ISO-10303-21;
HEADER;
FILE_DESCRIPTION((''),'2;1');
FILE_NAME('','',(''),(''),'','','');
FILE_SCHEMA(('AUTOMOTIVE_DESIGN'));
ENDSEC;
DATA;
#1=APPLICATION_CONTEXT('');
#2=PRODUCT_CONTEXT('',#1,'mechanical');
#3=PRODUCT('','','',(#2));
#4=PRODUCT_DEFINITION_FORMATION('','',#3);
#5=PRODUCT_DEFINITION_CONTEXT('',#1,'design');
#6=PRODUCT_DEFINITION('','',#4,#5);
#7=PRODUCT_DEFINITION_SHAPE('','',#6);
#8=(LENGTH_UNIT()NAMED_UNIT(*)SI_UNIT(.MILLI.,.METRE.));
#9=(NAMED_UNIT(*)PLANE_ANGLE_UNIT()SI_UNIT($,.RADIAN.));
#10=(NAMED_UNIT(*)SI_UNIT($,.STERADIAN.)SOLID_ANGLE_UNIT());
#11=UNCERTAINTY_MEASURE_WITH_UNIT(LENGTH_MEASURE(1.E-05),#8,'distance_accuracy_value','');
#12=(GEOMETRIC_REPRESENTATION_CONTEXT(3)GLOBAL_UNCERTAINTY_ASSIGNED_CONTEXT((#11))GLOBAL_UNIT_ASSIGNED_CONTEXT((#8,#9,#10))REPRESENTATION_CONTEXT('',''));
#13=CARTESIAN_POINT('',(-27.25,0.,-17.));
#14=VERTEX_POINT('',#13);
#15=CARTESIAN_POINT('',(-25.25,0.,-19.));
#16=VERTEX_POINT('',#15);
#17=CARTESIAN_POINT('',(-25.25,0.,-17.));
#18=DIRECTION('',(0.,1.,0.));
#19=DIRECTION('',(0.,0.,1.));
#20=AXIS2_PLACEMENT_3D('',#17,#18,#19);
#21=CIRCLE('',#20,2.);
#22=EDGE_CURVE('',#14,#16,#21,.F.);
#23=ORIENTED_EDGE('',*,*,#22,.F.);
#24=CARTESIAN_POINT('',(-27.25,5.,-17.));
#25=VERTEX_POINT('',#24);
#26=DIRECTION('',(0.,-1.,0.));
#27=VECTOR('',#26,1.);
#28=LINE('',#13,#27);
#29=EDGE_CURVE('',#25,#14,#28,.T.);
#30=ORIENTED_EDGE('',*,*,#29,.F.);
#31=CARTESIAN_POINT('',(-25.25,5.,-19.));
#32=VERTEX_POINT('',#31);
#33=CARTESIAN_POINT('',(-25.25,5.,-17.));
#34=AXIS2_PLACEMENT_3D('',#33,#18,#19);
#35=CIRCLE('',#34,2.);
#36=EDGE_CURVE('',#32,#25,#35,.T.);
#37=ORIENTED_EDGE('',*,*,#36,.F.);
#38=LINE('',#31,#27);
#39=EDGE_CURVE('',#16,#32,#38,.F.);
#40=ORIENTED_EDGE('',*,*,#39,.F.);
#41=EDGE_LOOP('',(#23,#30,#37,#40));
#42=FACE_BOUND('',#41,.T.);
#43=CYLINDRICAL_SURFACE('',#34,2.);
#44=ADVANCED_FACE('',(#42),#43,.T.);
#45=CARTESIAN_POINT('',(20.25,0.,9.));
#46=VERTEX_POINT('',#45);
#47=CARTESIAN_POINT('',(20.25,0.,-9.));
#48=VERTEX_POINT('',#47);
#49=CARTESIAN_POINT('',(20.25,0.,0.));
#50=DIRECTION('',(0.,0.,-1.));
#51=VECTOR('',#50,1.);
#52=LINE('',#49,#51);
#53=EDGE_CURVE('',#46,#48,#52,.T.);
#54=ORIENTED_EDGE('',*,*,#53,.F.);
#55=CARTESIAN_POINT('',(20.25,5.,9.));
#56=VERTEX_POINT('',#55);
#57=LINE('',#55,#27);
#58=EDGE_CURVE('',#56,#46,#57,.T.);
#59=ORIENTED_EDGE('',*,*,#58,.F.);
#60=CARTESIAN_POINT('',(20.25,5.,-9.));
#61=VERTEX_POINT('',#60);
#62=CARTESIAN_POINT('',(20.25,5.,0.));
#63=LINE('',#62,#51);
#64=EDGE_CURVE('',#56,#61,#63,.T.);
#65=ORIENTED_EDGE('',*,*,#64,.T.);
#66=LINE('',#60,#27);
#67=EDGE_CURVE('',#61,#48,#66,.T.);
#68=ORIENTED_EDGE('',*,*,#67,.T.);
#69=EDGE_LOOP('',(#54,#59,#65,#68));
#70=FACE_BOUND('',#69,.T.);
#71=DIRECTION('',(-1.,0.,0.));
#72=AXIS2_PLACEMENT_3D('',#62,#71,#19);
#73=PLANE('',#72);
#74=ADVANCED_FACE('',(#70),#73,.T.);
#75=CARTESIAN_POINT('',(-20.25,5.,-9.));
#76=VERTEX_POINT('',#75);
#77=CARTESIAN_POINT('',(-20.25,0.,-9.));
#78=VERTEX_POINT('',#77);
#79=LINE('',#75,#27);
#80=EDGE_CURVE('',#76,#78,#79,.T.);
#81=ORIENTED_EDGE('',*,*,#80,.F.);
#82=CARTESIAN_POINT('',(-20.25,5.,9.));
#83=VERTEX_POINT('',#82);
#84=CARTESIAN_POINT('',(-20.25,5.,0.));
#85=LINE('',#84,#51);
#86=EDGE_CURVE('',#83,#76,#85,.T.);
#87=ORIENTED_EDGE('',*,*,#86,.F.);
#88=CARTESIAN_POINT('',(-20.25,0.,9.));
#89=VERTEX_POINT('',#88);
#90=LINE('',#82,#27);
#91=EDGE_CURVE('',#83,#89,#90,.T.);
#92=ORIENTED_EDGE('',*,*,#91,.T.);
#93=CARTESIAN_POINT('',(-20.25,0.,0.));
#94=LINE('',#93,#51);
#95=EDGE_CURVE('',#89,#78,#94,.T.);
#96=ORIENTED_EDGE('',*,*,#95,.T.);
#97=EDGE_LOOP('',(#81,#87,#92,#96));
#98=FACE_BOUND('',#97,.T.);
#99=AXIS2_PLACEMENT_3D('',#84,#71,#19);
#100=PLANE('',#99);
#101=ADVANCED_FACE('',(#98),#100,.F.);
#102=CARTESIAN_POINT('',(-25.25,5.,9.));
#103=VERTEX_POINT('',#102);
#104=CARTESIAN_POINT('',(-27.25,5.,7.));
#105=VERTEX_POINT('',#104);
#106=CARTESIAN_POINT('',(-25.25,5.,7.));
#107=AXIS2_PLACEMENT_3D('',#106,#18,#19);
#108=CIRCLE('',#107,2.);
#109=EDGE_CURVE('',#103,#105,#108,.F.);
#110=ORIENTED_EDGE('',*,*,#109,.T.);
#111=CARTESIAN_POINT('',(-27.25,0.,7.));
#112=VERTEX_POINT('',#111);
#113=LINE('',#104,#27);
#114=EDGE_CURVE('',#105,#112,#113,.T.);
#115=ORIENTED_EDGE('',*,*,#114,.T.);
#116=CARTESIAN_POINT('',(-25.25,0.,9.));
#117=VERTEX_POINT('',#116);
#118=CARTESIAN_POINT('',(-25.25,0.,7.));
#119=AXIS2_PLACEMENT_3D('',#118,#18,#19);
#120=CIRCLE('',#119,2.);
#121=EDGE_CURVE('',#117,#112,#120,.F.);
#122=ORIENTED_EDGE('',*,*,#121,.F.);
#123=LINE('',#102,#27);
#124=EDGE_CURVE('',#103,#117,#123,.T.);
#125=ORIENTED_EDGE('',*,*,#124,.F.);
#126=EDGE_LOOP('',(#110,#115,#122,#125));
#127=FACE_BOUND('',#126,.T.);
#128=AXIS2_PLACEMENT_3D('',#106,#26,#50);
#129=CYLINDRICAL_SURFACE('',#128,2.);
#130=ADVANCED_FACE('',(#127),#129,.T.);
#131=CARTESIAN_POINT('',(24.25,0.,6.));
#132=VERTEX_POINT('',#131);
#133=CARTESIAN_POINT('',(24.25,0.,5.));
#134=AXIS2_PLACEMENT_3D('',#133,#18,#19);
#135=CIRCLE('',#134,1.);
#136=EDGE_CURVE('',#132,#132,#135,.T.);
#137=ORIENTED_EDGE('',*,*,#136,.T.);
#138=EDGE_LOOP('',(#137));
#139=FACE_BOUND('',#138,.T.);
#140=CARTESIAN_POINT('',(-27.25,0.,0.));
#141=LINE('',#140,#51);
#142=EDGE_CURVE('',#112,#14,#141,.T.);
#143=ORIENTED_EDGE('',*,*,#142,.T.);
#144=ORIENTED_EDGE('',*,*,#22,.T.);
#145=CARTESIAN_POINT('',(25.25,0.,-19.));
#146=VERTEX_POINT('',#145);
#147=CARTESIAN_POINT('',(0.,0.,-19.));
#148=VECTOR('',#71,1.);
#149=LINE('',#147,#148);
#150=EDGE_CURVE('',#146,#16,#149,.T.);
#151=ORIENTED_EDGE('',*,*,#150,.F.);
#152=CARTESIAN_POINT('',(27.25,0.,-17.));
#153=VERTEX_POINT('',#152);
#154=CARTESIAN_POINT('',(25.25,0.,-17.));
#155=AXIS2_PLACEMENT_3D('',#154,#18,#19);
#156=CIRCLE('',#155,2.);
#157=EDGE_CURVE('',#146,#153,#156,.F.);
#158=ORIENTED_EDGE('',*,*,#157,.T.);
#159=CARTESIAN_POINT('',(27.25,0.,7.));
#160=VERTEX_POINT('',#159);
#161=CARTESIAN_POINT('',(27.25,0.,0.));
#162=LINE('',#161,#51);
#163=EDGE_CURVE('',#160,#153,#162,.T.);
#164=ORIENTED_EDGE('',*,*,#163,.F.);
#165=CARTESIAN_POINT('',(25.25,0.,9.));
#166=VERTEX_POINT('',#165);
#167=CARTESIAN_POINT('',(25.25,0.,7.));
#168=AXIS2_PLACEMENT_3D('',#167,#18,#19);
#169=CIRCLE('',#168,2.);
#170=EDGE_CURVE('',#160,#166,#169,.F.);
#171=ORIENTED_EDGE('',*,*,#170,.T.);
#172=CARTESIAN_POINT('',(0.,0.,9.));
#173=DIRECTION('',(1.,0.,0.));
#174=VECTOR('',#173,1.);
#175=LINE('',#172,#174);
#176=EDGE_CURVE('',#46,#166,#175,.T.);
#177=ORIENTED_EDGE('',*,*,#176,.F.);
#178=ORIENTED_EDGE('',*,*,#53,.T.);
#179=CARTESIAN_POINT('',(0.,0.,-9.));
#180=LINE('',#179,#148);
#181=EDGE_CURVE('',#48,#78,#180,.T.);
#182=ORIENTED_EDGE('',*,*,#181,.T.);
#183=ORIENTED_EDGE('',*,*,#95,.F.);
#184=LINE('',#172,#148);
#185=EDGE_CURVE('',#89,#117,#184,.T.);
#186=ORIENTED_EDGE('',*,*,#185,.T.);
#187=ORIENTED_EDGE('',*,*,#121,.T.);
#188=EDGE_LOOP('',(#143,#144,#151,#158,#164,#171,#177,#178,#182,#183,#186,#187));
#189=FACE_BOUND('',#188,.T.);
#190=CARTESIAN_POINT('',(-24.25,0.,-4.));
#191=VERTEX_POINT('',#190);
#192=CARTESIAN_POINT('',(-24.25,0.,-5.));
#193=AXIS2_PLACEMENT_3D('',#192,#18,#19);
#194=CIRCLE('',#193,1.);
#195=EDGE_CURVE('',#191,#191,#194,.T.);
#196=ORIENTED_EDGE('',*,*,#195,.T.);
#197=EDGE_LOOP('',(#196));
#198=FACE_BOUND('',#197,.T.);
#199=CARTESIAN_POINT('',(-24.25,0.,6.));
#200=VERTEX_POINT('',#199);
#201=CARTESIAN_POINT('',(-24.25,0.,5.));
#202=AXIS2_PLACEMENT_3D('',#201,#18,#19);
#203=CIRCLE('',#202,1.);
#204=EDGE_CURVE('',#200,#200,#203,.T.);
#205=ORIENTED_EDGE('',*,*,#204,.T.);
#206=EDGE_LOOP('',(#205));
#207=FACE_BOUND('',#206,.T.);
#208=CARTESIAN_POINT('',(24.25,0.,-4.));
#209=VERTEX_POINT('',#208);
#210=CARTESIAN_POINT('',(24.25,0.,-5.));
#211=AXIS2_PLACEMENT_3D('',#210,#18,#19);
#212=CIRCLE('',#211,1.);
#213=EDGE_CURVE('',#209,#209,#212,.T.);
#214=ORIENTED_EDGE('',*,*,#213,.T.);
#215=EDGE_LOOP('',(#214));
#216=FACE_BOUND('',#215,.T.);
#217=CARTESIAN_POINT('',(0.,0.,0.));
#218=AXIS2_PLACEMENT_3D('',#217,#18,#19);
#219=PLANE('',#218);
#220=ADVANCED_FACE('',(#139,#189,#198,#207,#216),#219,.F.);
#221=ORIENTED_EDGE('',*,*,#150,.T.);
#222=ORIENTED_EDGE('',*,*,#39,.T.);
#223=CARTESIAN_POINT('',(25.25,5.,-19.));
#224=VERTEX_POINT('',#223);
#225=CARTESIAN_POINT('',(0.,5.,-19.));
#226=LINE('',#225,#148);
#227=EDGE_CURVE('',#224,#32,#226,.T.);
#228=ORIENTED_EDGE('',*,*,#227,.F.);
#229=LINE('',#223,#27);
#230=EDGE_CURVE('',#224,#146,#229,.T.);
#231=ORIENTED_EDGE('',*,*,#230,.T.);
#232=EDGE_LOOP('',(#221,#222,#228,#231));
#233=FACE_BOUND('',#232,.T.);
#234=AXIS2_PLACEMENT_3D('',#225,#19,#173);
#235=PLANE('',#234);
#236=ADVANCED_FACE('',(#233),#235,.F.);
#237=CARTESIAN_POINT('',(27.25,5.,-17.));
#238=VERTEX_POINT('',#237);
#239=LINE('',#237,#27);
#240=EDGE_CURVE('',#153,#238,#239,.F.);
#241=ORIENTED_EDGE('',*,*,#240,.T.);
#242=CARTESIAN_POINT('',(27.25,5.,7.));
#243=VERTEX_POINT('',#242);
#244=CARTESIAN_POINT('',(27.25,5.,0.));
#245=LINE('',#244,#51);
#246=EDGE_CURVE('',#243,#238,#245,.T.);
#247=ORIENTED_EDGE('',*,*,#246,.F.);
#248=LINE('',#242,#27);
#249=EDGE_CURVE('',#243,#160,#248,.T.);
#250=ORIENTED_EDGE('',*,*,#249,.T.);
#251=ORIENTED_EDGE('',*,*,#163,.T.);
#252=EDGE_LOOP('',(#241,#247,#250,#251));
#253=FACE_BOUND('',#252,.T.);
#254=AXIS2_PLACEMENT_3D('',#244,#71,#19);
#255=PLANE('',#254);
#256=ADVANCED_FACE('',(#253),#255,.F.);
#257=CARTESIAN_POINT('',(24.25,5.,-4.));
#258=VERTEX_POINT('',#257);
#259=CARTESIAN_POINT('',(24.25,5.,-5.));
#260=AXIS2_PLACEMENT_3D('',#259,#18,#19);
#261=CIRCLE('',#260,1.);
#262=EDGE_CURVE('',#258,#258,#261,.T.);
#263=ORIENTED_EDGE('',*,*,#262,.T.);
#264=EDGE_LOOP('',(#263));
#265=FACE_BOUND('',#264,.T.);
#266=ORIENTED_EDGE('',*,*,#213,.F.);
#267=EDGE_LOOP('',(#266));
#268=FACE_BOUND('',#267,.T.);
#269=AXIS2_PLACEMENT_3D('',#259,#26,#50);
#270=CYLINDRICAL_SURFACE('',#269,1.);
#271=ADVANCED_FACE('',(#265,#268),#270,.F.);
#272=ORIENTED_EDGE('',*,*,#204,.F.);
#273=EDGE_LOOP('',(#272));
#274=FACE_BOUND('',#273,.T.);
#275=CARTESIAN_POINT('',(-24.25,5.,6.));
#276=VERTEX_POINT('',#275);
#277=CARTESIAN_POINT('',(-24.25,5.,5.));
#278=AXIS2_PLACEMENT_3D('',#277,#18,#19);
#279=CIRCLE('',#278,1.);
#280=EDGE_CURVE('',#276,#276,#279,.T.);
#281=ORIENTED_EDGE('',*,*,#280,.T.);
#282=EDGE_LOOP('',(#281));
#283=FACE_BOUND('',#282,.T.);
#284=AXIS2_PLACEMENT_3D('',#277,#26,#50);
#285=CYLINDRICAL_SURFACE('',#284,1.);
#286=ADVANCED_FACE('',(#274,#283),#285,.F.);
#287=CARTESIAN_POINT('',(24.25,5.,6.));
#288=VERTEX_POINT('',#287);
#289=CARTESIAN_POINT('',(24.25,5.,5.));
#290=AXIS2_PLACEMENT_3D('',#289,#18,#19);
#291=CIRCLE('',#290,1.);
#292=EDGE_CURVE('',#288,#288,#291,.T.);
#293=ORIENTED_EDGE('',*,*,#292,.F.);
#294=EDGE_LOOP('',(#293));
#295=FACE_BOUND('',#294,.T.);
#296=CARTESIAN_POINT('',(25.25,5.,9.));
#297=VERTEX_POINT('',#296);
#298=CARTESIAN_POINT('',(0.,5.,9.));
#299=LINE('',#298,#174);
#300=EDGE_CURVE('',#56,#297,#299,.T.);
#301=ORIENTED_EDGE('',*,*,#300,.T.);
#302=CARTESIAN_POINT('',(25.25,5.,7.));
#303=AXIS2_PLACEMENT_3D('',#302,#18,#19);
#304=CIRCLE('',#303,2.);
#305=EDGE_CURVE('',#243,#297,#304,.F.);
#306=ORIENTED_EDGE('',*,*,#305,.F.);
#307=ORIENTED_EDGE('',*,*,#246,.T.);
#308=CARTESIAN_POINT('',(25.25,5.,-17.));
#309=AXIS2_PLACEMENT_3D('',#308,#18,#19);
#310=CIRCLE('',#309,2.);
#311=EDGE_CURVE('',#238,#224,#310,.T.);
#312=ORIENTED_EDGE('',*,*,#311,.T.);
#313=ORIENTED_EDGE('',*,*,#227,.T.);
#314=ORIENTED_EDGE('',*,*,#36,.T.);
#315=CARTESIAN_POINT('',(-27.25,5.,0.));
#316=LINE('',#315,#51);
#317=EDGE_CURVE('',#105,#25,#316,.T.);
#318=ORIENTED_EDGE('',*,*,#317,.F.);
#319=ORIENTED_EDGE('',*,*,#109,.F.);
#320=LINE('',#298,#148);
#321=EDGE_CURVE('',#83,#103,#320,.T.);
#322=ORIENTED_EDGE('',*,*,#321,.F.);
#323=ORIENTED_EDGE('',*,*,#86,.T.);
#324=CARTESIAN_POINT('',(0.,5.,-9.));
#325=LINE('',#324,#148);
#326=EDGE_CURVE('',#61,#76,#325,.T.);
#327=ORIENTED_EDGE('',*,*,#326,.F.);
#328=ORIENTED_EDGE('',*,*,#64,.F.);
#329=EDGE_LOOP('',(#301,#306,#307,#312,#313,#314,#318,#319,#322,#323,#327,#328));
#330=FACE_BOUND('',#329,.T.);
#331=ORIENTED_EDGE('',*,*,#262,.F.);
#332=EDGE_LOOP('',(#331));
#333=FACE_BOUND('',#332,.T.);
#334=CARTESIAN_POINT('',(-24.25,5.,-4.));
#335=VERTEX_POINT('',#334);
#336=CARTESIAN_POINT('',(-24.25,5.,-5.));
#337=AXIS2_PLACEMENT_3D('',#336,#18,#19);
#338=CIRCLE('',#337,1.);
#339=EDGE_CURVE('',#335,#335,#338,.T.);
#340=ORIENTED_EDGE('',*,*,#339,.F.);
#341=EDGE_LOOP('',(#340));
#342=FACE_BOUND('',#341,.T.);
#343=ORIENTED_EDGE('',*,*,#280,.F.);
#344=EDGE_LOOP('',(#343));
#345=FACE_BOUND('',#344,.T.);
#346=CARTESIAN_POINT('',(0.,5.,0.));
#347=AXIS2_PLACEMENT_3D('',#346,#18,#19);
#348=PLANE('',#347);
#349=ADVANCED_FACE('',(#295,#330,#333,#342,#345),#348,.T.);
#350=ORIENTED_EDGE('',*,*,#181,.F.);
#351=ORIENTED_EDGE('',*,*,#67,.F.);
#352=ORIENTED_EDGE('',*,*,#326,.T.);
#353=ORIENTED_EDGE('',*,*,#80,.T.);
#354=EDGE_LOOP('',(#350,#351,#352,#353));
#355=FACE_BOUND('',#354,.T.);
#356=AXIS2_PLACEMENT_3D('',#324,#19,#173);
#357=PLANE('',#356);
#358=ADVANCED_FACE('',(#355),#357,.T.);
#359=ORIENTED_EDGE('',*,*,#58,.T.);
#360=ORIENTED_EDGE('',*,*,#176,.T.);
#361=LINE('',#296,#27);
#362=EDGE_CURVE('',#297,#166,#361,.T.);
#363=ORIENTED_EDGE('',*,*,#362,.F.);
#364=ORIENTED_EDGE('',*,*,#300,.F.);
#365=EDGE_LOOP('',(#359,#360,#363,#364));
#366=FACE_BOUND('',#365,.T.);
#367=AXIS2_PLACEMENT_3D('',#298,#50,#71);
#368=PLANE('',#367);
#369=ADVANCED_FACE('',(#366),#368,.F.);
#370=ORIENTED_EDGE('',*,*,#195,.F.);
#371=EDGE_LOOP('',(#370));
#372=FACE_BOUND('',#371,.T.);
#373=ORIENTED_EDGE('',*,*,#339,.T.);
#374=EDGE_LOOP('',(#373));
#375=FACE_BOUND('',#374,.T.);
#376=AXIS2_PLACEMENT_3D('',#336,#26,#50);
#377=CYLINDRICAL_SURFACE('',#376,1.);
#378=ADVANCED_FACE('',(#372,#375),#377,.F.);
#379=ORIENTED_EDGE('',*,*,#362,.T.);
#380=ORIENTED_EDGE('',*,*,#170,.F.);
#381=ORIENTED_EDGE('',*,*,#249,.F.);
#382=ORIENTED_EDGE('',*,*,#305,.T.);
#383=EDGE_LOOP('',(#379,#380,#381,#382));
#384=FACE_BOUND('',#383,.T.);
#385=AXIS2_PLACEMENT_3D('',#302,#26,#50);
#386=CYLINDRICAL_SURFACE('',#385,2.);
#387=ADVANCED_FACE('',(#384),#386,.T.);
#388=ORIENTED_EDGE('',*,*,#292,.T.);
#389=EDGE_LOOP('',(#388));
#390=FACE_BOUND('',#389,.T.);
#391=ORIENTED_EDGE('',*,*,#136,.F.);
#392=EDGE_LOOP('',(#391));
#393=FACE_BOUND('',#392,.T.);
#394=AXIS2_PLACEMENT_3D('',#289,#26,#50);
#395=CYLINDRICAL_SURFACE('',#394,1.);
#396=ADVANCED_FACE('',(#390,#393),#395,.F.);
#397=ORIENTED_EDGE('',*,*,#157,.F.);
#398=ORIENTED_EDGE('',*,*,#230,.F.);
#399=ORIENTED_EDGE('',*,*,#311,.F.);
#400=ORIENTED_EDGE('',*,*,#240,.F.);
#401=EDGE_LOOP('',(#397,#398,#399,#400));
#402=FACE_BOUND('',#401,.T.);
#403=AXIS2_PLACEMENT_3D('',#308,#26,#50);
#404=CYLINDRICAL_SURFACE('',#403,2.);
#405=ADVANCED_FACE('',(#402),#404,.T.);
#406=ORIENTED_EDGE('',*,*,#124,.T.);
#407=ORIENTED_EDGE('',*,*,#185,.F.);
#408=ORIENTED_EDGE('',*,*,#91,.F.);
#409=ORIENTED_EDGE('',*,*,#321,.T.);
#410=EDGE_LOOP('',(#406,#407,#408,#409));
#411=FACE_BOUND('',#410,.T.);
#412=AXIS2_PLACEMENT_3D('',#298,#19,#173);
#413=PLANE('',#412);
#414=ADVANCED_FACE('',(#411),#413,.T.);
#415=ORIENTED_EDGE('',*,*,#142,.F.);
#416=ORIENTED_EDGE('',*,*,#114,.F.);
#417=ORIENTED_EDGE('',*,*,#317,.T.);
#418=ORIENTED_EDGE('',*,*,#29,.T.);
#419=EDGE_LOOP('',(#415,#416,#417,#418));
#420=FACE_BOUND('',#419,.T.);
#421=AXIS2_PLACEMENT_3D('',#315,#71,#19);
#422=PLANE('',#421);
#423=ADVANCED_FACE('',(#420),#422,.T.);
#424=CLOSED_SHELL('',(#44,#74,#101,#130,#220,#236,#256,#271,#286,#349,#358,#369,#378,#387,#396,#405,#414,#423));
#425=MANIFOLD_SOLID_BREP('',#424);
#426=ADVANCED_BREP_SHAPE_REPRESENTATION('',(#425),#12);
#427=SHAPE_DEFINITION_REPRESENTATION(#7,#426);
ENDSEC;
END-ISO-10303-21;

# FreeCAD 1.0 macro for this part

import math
import FreeCAD as App
import Part
import Sketcher
Q = App.Units.Quantity


def edges_at(feature, points):
    """Names of the edges that pass closest to the given points."""
    edges = feature.Shape.Edges
    near = lambda p: min(range(len(edges)), key=lambda i: edges[i].distToShape(Part.Vertex(*p))[0])
    return sorted({f"Edge{near(p) + 1}" for p in points})

doc = App.newDocument("Part")
body = doc.addObject("PartDesign::Body", "Body")

sketch1 = doc.addObject("Sketcher::SketchObject", "Sketch")
body.addObject(sketch1)
sketch1.AttachmentSupport = (doc.XZ_Plane, [""])
sketch1.MapMode = "FlatFace"
sketch1.addGeometry(Part.ArcOfCircle(Part.Circle(App.Vector(-25.25, 7, 0), App.Vector(0, 0, 1), 2), math.radians(90), math.radians(180)), False)
sketch1.addGeometry(Part.LineSegment(App.Vector(-25.25, 9, 0), App.Vector(-20.25, 9, 0)), False)
sketch1.addGeometry(Part.LineSegment(App.Vector(-20.25, 9, 0), App.Vector(-20.25, -9, 0)), False)
sketch1.addGeometry(Part.LineSegment(App.Vector(-20.25, -9, 0), App.Vector(20.25, -9, 0)), False)
sketch1.addGeometry(Part.LineSegment(App.Vector(20.25, -9, 0), App.Vector(20.25, 9, 0)), False)
sketch1.addGeometry(Part.LineSegment(App.Vector(20.25, 9, 0), App.Vector(25.25, 9, 0)), False)
sketch1.addGeometry(Part.ArcOfCircle(Part.Circle(App.Vector(25.25, 7, 0), App.Vector(0, 0, 1), 2), math.radians(0), math.radians(90)), False)
sketch1.addGeometry(Part.LineSegment(App.Vector(27.25, 7, 0), App.Vector(27.25, -19, 0)), False)
sketch1.addGeometry(Part.LineSegment(App.Vector(27.25, -19, 0), App.Vector(-27.25, -19, 0)), False)
sketch1.addGeometry(Part.LineSegment(App.Vector(-27.25, -19, 0), App.Vector(-27.25, 7, 0)), False)
sketch1.addGeometry(Part.Circle(App.Vector(24.25, 5, 0), App.Vector(0, 0, 1), 1), False)
sketch1.addGeometry(Part.Circle(App.Vector(-24.25, 5, 0), App.Vector(0, 0, 1), 1), False)
sketch1.addGeometry(Part.Circle(App.Vector(24.25, -5, 0), App.Vector(0, 0, 1), 1), False)
sketch1.addGeometry(Part.Circle(App.Vector(-24.25, -5, 0), App.Vector(0, 0, 1), 1), False)
sketch1.addConstraint(Sketcher.Constraint("Tangent", 0, 1, 1, 1))
sketch1.addConstraint(Sketcher.Constraint("Coincident", 1, 2, 2, 1))
sketch1.addConstraint(Sketcher.Constraint("Coincident", 2, 2, 3, 1))
sketch1.addConstraint(Sketcher.Constraint("Coincident", 3, 2, 4, 1))
sketch1.addConstraint(Sketcher.Constraint("Coincident", 4, 2, 5, 1))
sketch1.addConstraint(Sketcher.Constraint("Tangent", 5, 2, 6, 2))
sketch1.addConstraint(Sketcher.Constraint("Tangent", 6, 1, 7, 1))
sketch1.addConstraint(Sketcher.Constraint("Coincident", 7, 2, 8, 1))
sketch1.addConstraint(Sketcher.Constraint("Coincident", 8, 2, 9, 1))
sketch1.addConstraint(Sketcher.Constraint("Tangent", 9, 2, 0, 2))
sketch1.addConstraint(Sketcher.Constraint("Horizontal", 1))
sketch1.addConstraint(Sketcher.Constraint("Vertical", 2))
sketch1.addConstraint(Sketcher.Constraint("Horizontal", 3))
sketch1.addConstraint(Sketcher.Constraint("Vertical", 4))
sketch1.addConstraint(Sketcher.Constraint("Horizontal", 5))
sketch1.addConstraint(Sketcher.Constraint("Vertical", 7))
sketch1.addConstraint(Sketcher.Constraint("Horizontal", 8))
sketch1.addConstraint(Sketcher.Constraint("Vertical", 9))
sketch1.addConstraint(Sketcher.Constraint("Equal", 0, 6))
sketch1.addConstraint(Sketcher.Constraint("Equal", 10, 11))
sketch1.addConstraint(Sketcher.Constraint("Equal", 11, 12))
sketch1.addConstraint(Sketcher.Constraint("Equal", 12, 13))
sketch1.addConstraint(Sketcher.Constraint("Symmetric", 11, 3, 12, 3, -1, 1))
sketch1.addConstraint(Sketcher.Constraint("Symmetric", 10, 3, 13, 3, -1, 1))
sketch1.addConstraint(Sketcher.Constraint("Symmetric", 1, 2, 3, 2, -1, 1))
sketch1.addConstraint(Sketcher.Constraint("Symmetric", 0, 3, 6, 3, -2))
sketch1.addConstraint(Sketcher.Constraint("Symmetric", 10, 3, 11, 3, -2))
sketch1.addConstraint(Sketcher.Constraint("Diameter", 10, Q("2 mm")))
sketch1.addConstraint(Sketcher.Constraint("Radius", 0, Q("2 mm")))
sketch1.addConstraint(Sketcher.Constraint("DistanceX", 1, 1, 1, 2, Q("5 mm")))
sketch1.addConstraint(Sketcher.Constraint("DistanceY", 2, 2, 2, 1, Q("18 mm")))
sketch1.addConstraint(Sketcher.Constraint("DistanceY", 7, 2, 7, 1, Q("26 mm")))
sketch1.addConstraint(Sketcher.Constraint("DistanceX", 3, 1, 3, 2, Q("40.5 mm")))
sketch1.addConstraint(Sketcher.Constraint("DistanceY", -1, 1, 10, 3, Q("5 mm")))
sketch1.addConstraint(Sketcher.Constraint("DistanceX", 10, 3, 6, 3, Q("1 mm")))
pad1 = doc.addObject("PartDesign::Pad", "Pad")
body.addObject(pad1)
pad1.Profile = sketch1
pad1.Length = 5
pad1.Reversed = True
doc.recompute()

fillet = doc.addObject("PartDesign::Fillet", "Fillet")
body.addObject(fillet)
fillet.Base = (pad1, edges_at(pad1, [(-27.25, 2.5, -19), (27.25, 2.5, -19)]))
fillet.Radius = 2

doc.recompute()
